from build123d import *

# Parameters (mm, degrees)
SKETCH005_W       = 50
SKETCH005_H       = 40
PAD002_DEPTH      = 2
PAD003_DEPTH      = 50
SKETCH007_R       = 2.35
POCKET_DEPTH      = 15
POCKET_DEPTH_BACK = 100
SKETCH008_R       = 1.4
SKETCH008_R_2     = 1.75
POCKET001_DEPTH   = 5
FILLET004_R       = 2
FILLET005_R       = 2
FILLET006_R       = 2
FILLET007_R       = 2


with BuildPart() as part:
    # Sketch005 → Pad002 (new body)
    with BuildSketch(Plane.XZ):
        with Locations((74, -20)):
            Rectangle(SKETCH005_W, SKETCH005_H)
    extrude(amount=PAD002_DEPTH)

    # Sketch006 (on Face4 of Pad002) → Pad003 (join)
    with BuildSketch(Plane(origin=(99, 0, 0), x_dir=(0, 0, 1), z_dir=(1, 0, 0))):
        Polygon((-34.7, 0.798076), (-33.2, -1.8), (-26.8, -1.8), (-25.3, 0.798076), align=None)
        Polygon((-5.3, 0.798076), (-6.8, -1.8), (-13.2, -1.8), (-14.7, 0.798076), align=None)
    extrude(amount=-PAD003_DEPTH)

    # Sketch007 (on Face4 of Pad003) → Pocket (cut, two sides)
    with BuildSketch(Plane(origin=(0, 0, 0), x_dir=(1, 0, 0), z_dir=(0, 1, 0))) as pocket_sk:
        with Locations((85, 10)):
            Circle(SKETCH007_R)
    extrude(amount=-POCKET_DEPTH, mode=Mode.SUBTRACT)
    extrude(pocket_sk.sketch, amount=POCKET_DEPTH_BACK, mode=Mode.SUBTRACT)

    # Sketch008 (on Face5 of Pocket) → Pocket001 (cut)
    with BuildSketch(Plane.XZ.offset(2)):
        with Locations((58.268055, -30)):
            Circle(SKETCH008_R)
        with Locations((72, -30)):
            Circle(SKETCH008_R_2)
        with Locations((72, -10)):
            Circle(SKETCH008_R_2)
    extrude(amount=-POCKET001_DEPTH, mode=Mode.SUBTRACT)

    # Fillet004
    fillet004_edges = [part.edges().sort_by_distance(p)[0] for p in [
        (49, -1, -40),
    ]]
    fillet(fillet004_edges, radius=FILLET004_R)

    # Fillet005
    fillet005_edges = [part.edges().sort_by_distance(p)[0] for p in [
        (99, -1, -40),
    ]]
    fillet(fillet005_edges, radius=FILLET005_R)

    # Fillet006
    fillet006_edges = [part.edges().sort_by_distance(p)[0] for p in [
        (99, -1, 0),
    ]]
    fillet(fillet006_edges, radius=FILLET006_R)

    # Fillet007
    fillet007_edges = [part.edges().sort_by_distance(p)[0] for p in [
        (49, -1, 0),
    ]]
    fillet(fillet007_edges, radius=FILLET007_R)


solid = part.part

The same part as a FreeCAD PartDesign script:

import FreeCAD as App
import Part
import Sketcher
from FreeCAD import Vector
Q = App.Units.Quantity


def edges_at(feature, points):
    """Names of the edges that pass closest to the given points."""
    edges = feature.Shape.Edges
    near = lambda p: min(range(len(edges)), key=lambda i: edges[i].distToShape(Part.Vertex(*p))[0])
    return sorted({f"Edge{near(p) + 1}" for p in points})


def add_polygon(sketch, points):
    """Adds a closed chain of lines whose ends are joined by coincident constraints."""
    first, n = sketch.GeometryCount, len(points)
    for a, b in zip(points, points[1:] + points[:1]):
        sketch.addGeometry(Part.LineSegment(App.Vector(*a, 0), App.Vector(*b, 0)), False)
    for i in range(n):
        sketch.addConstraint(Sketcher.Constraint("Coincident", first + i, 2, first + (i + 1) % n, 1))

doc = App.newDocument("Part")
body = doc.addObject("PartDesign::Body", "Body")

# Sketch on XZ plane
sketch1 = body.newObject("Sketcher::SketchObject", "Sketch")
sketch1.AttachmentSupport = (doc.getObject("XZ_Plane"), [""])
sketch1.MapMode = "FlatFace"
add_polygon(sketch1, [(49, 0), (49, -40), (99, -40), (99, 0)])  # lines 0-3
sketch1.addConstraint(Sketcher.Constraint("Vertical", 0))
sketch1.addConstraint(Sketcher.Constraint("Horizontal", 1))
sketch1.addConstraint(Sketcher.Constraint("Vertical", 2))
sketch1.addConstraint(Sketcher.Constraint("Horizontal", 3))
sketch1.addConstraint(Sketcher.Constraint("PointOnObject", 2, 2, -1))
sketch1.addConstraint(Sketcher.Constraint("DistanceX", 1, 1, 1, 2, 50.0))
sketch1.addConstraint(Sketcher.Constraint("DistanceY", 0, 2, 0, 1, 40.0))
sketch1.addConstraint(Sketcher.Constraint("DistanceX", -1, 1, 0, 2, 49.0))
pad1 = body.newObject("PartDesign::Pad", "Pad")
pad1.Profile = sketch1
pad1.Length = 2

# Sketch on YZ plane
sketch2 = body.newObject("Sketcher::SketchObject", "Sketch001")
sketch2.AttachmentSupport = (doc.getObject("YZ_Plane"), [""])
sketch2.MapMode = "FlatFace"
sketch2.AttachmentOffset = App.Placement(Vector(0, 0, 99), App.Rotation())
add_polygon(sketch2, [(-0.8, -34.7), (1.8, -33.2), (1.8, -26.8), (-0.8, -25.3)])  # lines 0-3
add_polygon(sketch2, [(1.8, -6.8), (-0.8, -5.3), (-0.8, -14.7), (1.8, -13.2)])  # lines 4-7
sketch2.addConstraint(Sketcher.Constraint("Vertical", 1))
sketch2.addConstraint(Sketcher.Constraint("Vertical", 3))
sketch2.addConstraint(Sketcher.Constraint("Vertical", 5))
sketch2.addConstraint(Sketcher.Constraint("Vertical", 7))
sketch2.addConstraint(Sketcher.Constraint("Parallel", 2, 4))
sketch2.addConstraint(Sketcher.Constraint("Parallel", 0, 6))
sketch2.addConstraint(Sketcher.Constraint("Vertical", 3, 2, 4, 2))
sketch2.addConstraint(Sketcher.Constraint("Vertical", 1, 2, 6, 2))
sketch2.addConstraint(Sketcher.Constraint("Equal", 3, 5))
sketch2.addConstraint(Sketcher.Constraint("Equal", 0, 2))
sketch2.addConstraint(Sketcher.Constraint("Angle", 0, Q("30.000002 deg")))
sketch2.addConstraint(Sketcher.Constraint("Distance", 0, 3.0))
sketch2.addConstraint(Sketcher.Constraint("DistanceY", 1, 1, 1, 2, 6.4))
sketch2.addConstraint(Sketcher.Constraint("DistanceY", 2, 2, 4, 2, 20.0))
sketch2.addConstraint(Sketcher.Constraint("DistanceX", -1, 1, 0, 2, 1.8))
sketch2.addConstraint(Sketcher.Constraint("DistanceY", 0, 2, -1, 1, 33.2))
pad2 = body.newObject("PartDesign::Pad", "Pad001")
pad2.Profile = sketch2
pad2.Length = 50
pad2.Reversed = True

# Sketch on XZ plane
sketch3 = body.newObject("Sketcher::SketchObject", "Sketch002")
sketch3.AttachmentSupport = (doc.getObject("XZ_Plane"), [""])
sketch3.MapMode = "FlatFace"
sketch3.addGeometry(Part.Circle(Vector(85, -10, 0), Vector(0, 0, 1), 2.4), False)
sketch3.addConstraint(Sketcher.Constraint("Diameter", 0, 4.7))
sketch3.addConstraint(Sketcher.Constraint("DistanceX", -1, 1, 0, 3, 85.0))
sketch3.addConstraint(Sketcher.Constraint("DistanceY", 0, 3, -1, 1, 10.0))
pocket1 = body.newObject("PartDesign::Pocket", "Pocket")
pocket1.Profile = sketch3
pocket1.Type = "ThroughAll"
pocket1.Midplane = True

# Sketch on XZ plane
sketch4 = body.newObject("Sketcher::SketchObject", "Sketch003")
sketch4.AttachmentSupport = (doc.getObject("XZ_Plane"), [""])
sketch4.MapMode = "FlatFace"
sketch4.AttachmentOffset = App.Placement(Vector(0, 0, 2), App.Rotation())
sketch4.addGeometry(Part.Circle(Vector(58.3, -30, 0), Vector(0, 0, 1), 1.4), False)
sketch4.addGeometry(Part.Circle(Vector(72, -30, 0), Vector(0, 0, 1), 1.8), False)
sketch4.addGeometry(Part.Circle(Vector(72, -10, 0), Vector(0, 0, 1), 1.8), False)
sketch4.addConstraint(Sketcher.Constraint("Equal", 1, 2))
sketch4.addConstraint(Sketcher.Constraint("Horizontal", 0, 3, 1, 3))
sketch4.addConstraint(Sketcher.Constraint("Vertical", 1, 3, 2, 3))
sketch4.addConstraint(Sketcher.Constraint("Diameter", 0, 2.8))
sketch4.addConstraint(Sketcher.Constraint("Diameter", 1, 3.5))
sketch4.addConstraint(Sketcher.Constraint("DistanceY", 0, 3, -1, 1, 30.0))
sketch4.addConstraint(Sketcher.Constraint("DistanceX", -1, 1, 1, 3, 72.0))
sketch4.addConstraint(Sketcher.Constraint("DistanceY", 2, 3, -1, 1, 10.0))
sketch4.addConstraint(Sketcher.Constraint("DistanceX", -1, 1, 0, 3, 58.268055))
pocket2 = body.newObject("PartDesign::Pocket", "Pocket001")
pocket2.Profile = sketch4
pocket2.Length = 5
doc.recompute()

fillet = body.newObject("PartDesign::Fillet", "Fillet")
fillet.Base = (pocket2, edges_at(pocket2, [(49, -1, -40)]))
fillet.Radius = 2
doc.recompute()

fillet2 = body.newObject("PartDesign::Fillet", "Fillet001")
fillet2.Base = (fillet, edges_at(fillet, [(99, -1, -40)]))
fillet2.Radius = 2
doc.recompute()

fillet3 = body.newObject("PartDesign::Fillet", "Fillet002")
fillet3.Base = (fillet2, edges_at(fillet2, [(99, -1, 0)]))
fillet3.Radius = 2
doc.recompute()

fillet4 = body.newObject("PartDesign::Fillet", "Fillet003")
fillet4.Base = (fillet3, edges_at(fillet3, [(49, -1, 0)]))
fillet4.Radius = 2

doc.recompute()
